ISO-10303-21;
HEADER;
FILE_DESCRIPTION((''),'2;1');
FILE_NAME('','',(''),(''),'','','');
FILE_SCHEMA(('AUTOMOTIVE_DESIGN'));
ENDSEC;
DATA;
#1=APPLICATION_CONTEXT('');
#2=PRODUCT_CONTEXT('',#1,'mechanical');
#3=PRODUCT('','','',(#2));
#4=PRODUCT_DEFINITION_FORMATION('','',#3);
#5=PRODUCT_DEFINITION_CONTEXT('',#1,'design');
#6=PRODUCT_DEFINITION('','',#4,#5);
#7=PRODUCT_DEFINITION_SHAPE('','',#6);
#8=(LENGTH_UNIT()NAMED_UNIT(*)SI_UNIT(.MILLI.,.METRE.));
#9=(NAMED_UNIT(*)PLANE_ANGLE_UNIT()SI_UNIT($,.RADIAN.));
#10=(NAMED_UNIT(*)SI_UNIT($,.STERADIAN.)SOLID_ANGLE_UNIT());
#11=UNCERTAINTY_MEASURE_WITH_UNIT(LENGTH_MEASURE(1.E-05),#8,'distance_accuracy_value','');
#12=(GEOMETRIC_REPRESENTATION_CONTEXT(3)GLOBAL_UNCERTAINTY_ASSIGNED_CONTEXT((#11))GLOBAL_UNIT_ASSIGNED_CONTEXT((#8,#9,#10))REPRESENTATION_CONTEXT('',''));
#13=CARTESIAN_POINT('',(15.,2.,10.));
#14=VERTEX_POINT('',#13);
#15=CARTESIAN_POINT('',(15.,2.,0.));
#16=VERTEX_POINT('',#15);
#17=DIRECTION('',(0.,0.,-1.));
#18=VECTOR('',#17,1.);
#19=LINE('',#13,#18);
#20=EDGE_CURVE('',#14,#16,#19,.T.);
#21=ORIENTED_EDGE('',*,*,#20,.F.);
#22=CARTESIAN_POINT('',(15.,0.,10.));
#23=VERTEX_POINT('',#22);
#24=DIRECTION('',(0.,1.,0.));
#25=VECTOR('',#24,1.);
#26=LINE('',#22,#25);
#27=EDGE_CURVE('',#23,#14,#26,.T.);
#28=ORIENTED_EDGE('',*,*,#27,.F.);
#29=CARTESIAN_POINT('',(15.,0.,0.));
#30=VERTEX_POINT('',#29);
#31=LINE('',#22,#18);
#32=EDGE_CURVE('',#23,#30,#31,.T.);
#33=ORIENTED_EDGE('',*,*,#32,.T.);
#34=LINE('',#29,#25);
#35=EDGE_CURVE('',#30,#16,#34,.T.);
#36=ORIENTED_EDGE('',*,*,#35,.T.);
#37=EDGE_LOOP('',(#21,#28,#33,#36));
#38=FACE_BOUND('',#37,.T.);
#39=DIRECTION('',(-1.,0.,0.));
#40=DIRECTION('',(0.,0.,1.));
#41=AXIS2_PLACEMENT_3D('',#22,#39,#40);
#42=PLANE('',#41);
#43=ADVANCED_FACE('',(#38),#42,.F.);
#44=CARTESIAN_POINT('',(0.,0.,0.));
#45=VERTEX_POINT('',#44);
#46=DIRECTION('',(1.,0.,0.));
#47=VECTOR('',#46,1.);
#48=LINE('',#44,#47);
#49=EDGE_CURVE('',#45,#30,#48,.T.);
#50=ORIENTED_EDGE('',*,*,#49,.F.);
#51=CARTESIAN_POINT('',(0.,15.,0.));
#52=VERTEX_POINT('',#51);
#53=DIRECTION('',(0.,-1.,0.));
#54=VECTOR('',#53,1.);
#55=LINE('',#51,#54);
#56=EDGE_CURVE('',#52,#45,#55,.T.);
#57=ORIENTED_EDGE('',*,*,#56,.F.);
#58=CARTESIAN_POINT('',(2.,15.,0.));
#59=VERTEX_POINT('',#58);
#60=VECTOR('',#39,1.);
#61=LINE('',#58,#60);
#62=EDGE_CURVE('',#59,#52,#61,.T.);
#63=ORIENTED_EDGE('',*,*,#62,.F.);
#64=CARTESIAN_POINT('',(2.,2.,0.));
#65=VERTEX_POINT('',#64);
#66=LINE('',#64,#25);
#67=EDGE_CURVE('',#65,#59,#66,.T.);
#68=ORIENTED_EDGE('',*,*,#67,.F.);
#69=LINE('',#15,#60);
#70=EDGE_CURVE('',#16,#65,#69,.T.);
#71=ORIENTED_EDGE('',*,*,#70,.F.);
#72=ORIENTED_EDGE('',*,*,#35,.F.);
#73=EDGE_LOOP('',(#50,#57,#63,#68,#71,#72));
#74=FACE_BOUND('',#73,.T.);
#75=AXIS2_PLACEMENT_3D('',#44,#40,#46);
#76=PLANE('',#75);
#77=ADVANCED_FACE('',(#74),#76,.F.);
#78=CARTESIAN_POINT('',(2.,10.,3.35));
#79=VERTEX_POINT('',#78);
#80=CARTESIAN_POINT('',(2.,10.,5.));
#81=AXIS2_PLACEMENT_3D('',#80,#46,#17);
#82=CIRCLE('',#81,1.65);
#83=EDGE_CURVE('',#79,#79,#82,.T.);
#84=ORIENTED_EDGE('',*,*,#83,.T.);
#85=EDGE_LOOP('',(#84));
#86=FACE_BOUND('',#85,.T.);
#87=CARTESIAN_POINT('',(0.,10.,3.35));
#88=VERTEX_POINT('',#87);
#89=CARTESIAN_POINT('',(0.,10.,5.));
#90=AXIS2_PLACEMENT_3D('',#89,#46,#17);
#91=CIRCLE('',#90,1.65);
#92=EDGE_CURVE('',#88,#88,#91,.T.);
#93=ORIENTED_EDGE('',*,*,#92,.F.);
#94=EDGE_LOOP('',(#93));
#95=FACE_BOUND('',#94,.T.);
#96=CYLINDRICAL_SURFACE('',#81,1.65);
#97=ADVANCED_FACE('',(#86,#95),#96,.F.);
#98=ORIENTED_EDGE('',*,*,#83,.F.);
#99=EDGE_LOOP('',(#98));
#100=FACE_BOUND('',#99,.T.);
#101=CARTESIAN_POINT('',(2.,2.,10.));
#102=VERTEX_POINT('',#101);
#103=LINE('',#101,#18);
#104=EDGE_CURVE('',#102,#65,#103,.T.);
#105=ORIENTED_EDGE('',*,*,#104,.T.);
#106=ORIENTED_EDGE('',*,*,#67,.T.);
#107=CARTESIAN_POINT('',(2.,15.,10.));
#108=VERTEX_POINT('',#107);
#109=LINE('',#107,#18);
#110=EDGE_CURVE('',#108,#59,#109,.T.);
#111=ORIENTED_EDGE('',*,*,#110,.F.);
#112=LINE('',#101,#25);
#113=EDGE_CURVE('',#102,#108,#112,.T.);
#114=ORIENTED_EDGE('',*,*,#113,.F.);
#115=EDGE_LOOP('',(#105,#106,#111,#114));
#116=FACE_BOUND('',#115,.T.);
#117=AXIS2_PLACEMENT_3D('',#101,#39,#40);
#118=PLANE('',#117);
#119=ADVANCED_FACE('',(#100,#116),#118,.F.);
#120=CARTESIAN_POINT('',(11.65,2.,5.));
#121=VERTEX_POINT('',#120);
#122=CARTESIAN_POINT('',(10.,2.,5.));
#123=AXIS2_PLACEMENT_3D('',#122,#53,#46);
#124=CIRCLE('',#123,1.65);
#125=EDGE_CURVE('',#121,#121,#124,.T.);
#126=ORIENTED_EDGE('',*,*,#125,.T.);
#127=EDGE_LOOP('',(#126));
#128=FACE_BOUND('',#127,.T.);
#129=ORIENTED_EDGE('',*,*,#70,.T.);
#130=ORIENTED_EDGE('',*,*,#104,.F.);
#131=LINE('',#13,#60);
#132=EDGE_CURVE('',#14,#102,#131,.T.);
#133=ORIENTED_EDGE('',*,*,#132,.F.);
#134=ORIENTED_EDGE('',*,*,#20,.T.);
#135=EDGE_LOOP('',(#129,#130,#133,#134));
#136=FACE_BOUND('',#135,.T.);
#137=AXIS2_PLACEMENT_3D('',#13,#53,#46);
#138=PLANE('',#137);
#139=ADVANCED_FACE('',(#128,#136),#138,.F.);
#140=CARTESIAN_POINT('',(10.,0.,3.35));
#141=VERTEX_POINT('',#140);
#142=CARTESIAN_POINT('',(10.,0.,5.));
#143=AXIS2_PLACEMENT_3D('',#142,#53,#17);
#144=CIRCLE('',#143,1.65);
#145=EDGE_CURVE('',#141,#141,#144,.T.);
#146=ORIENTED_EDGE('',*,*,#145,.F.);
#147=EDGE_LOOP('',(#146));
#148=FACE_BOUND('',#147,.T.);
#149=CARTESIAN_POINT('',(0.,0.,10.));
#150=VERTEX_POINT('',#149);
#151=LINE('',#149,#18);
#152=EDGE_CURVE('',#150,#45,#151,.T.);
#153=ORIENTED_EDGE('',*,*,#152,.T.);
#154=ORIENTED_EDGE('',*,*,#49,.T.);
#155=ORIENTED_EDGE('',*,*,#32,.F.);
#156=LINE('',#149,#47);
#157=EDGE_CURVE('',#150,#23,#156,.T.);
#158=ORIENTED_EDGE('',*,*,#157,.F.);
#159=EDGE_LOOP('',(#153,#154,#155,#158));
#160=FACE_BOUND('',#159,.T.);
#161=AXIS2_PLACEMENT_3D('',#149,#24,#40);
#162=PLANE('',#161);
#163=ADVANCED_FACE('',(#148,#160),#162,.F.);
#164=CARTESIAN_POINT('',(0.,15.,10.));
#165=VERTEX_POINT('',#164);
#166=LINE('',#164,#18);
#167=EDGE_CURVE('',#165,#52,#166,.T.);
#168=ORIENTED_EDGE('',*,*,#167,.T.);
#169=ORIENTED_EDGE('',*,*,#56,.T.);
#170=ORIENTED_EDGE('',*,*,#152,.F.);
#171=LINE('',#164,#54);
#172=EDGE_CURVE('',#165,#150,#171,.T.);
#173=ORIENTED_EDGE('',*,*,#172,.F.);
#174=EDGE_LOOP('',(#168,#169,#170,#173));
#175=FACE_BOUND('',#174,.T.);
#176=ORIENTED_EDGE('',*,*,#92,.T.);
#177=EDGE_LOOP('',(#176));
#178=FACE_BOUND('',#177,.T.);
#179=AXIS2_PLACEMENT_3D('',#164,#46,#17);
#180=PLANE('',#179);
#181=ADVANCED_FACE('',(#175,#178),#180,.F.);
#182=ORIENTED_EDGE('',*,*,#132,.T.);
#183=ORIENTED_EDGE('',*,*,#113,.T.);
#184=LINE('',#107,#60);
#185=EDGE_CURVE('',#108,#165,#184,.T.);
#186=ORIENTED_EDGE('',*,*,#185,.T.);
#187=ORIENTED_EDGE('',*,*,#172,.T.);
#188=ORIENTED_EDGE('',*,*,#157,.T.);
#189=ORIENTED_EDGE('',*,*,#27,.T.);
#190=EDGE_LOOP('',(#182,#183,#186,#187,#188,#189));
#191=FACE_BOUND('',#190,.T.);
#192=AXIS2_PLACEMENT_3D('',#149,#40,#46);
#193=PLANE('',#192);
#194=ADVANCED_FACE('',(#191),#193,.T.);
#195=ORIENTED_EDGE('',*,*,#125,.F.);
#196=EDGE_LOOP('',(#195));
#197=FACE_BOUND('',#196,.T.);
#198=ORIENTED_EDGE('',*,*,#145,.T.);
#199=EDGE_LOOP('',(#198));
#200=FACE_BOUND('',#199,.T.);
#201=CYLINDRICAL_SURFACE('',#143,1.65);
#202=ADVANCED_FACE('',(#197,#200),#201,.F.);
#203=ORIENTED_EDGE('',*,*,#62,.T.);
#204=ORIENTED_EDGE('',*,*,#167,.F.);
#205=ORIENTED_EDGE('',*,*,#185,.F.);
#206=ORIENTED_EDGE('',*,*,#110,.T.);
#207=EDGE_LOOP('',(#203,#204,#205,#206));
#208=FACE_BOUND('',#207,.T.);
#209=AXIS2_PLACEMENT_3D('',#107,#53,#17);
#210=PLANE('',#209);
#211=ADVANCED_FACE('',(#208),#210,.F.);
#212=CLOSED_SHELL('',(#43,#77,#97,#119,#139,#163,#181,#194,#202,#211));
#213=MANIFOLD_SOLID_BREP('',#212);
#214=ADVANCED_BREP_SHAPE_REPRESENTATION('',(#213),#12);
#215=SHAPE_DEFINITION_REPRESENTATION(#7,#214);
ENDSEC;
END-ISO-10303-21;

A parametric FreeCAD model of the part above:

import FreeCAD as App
import Part
import Sketcher

V = App.Vector
Q = App.Units.Quantity

doc = App.newDocument("Part")
body = doc.addObject("PartDesign::Body", "Body")

# Sketch on XY plane
sketch1 = doc.addObject("Sketcher::SketchObject", "Sketch")
body.addObject(sketch1)
sketch1.AttachmentSupport = (doc.XY_Plane, [""])
sketch1.MapMode = "FlatFace"
sketch1.addGeometry(Part.LineSegment(V(0, 0, 0), V(15, 0, 0)), False)
sketch1.addGeometry(Part.LineSegment(V(15, 0, 0), V(15, 2, 0)), False)
sketch1.addGeometry(Part.LineSegment(V(15, 2, 0), V(2, 2, 0)), False)
sketch1.addGeometry(Part.LineSegment(V(2, 2, 0), V(2, 15, 0)), False)
sketch1.addGeometry(Part.LineSegment(V(2, 15, 0), V(0, 15, 0)), False)
sketch1.addGeometry(Part.LineSegment(V(0, 15, 0), V(0, 0, 0)), False)
sketch1.addConstraint(Sketcher.Constraint("Coincident", 0, 2, 1, 1))
sketch1.addConstraint(Sketcher.Constraint("Coincident", 1, 2, 2, 1))
sketch1.addConstraint(Sketcher.Constraint("Coincident", 2, 2, 3, 1))
sketch1.addConstraint(Sketcher.Constraint("Coincident", 3, 2, 4, 1))
sketch1.addConstraint(Sketcher.Constraint("Coincident", 4, 2, 5, 1))
sketch1.addConstraint(Sketcher.Constraint("Coincident", 5, 2, 0, 1))
sketch1.addConstraint(Sketcher.Constraint("Horizontal", 0))
sketch1.addConstraint(Sketcher.Constraint("Vertical", 1))
sketch1.addConstraint(Sketcher.Constraint("Horizontal", 2))
sketch1.addConstraint(Sketcher.Constraint("Vertical", 3))
sketch1.addConstraint(Sketcher.Constraint("Horizontal", 4))
sketch1.addConstraint(Sketcher.Constraint("Vertical", 5))
sketch1.addConstraint(Sketcher.Constraint("Coincident", 5, 2, -1, 1))
sketch1.addConstraint(Sketcher.Constraint("Equal", 4, 1))
sketch1.addConstraint(Sketcher.Constraint("Equal", 2, 3))
sketch1.addConstraint(Sketcher.Constraint("DistanceX", 0, 1, 0, 2, Q("15 mm")))
sketch1.addConstraint(Sketcher.Constraint("DistanceX", 2, 2, 2, 1, Q("13 mm")))
pad1 = doc.addObject("PartDesign::Pad", "Pad")
body.addObject(pad1)
pad1.Profile = sketch1
pad1.Length = 10

# Sketch on YZ plane
sketch2 = doc.addObject("Sketcher::SketchObject", "Sketch001")
body.addObject(sketch2)
sketch2.AttachmentSupport = (doc.YZ_Plane, [""])
sketch2.MapMode = "FlatFace"
sketch2.AttachmentOffset = App.Placement(V(0, 0, 2), App.Rotation())
sketch2.addGeometry(Part.Circle(V(10, 5, 0), V(0, 0, 1), 1.6), False)
sketch2.addConstraint(Sketcher.Constraint("Diameter", 0, Q("3.3 mm")))
sketch2.addConstraint(Sketcher.Constraint("DistanceX", -1, 1, 0, 3, Q("10 mm")))
sketch2.addConstraint(Sketcher.Constraint("DistanceY", -1, 1, 0, 3, Q("5 mm")))
doc.recompute()
hole = doc.addObject("PartDesign::Hole", "Hole")
body.addObject(hole)
hole.Profile = sketch2
hole.ThreadType = "None"
hole.Diameter = 3.3
hole.DepthType = "ThroughAll"

# Sketch on XZ plane
sketch3 = doc.addObject("Sketcher::SketchObject", "Sketch002")
body.addObject(sketch3)
sketch3.AttachmentSupport = (doc.XZ_Plane, [""])
sketch3.MapMode = "FlatFace"
sketch3.addGeometry(Part.Circle(V(10, 5, 0), V(0, 0, 1), 1.6), False)
sketch3.addConstraint(Sketcher.Constraint("Diameter", 0, Q("3.3 mm")))
sketch3.addConstraint(Sketcher.Constraint("DistanceX", -1, 1, 0, 3, Q("10 mm")))
sketch3.addConstraint(Sketcher.Constraint("DistanceY", -1, 1, 0, 3, Q("5 mm")))
doc.recompute()
hole2 = doc.addObject("PartDesign::Hole", "Hole001")
body.addObject(hole2)
hole2.Profile = sketch3
hole2.ThreadType = "None"
hole2.Diameter = 3.3
hole2.DepthType = "ThroughAll"

doc.recompute()
